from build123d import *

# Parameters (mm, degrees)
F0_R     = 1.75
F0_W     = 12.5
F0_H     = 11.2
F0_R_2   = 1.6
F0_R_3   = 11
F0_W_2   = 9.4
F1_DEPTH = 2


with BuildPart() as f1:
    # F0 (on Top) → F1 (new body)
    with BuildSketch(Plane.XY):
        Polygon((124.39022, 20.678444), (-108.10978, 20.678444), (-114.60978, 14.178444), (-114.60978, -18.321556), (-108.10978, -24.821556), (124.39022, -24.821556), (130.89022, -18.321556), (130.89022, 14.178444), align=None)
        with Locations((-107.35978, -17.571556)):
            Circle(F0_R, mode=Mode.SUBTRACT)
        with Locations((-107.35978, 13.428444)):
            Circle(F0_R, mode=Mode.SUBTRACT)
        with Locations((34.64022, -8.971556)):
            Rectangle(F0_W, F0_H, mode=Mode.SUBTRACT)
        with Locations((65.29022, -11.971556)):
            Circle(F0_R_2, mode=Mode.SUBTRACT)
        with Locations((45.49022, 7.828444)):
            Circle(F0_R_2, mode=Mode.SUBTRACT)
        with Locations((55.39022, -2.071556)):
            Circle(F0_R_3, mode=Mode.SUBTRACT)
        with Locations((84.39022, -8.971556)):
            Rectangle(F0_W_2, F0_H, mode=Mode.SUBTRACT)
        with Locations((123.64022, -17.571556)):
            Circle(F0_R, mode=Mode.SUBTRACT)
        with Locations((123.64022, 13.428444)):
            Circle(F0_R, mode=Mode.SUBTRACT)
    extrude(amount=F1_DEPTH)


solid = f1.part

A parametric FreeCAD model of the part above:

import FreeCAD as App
import Part
import Sketcher

doc = App.newDocument("Part")
body = doc.addObject("PartDesign::Body", "Body")

sketch1 = doc.addObject("Sketcher::SketchObject", "Sketch")
body.addObject(sketch1)
sketch1.AttachmentSupport = (doc.XY_Plane, [""])
sketch1.MapMode = "FlatFace"
sketch1.addGeometry(Part.LineSegment(App.Vector(124.4, 20.7, 0), App.Vector(-108.1, 20.7, 0)), False)
sketch1.addGeometry(Part.LineSegment(App.Vector(-108.1, 20.7, 0), App.Vector(-114.6, 14.2, 0)), False)
sketch1.addGeometry(Part.LineSegment(App.Vector(-114.6, 14.2, 0), App.Vector(-114.6, -18.3, 0)), False)
sketch1.addGeometry(Part.LineSegment(App.Vector(-114.6, -18.3, 0), App.Vector(-108.1, -24.8, 0)), False)
sketch1.addGeometry(Part.LineSegment(App.Vector(-108.1, -24.8, 0), App.Vector(124.4, -24.8, 0)), False)
sketch1.addGeometry(Part.LineSegment(App.Vector(124.4, -24.8, 0), App.Vector(130.9, -18.3, 0)), False)
sketch1.addGeometry(Part.LineSegment(App.Vector(130.9, -18.3, 0), App.Vector(130.9, 14.2, 0)), False)
sketch1.addGeometry(Part.LineSegment(App.Vector(130.9, 14.2, 0), App.Vector(124.4, 20.7, 0)), False)
sketch1.addGeometry(Part.Circle(App.Vector(-107.4, -17.6, 0), App.Vector(0, 0, 1), 1.8), False)
sketch1.addGeometry(Part.Circle(App.Vector(65.3, -12, 0), App.Vector(0, 0, 1), 1.6), False)
sketch1.addGeometry(Part.Circle(App.Vector(123.6, -17.6, 0), App.Vector(0, 0, 1), 1.8), False)
sketch1.addGeometry(Part.LineSegment(App.Vector(40.9, -14.6, 0), App.Vector(28.4, -14.6, 0)), False)
sketch1.addGeometry(Part.LineSegment(App.Vector(28.4, -14.6, 0), App.Vector(28.4, -3.4, 0)), False)
sketch1.addGeometry(Part.LineSegment(App.Vector(28.4, -3.4, 0), App.Vector(40.9, -3.4, 0)), False)
sketch1.addGeometry(Part.LineSegment(App.Vector(40.9, -3.4, 0), App.Vector(40.9, -14.6, 0)), False)
sketch1.addGeometry(Part.LineSegment(App.Vector(89.1, -14.6, 0), App.Vector(79.7, -14.6, 0)), False)
sketch1.addGeometry(Part.LineSegment(App.Vector(79.7, -14.6, 0), App.Vector(79.7, -3.4, 0)), False)
sketch1.addGeometry(Part.LineSegment(App.Vector(79.7, -3.4, 0), App.Vector(89.1, -3.4, 0)), False)
sketch1.addGeometry(Part.LineSegment(App.Vector(89.1, -3.4, 0), App.Vector(89.1, -14.6, 0)), False)
sketch1.addGeometry(Part.Circle(App.Vector(-107.4, 13.4, 0), App.Vector(0, 0, 1), 1.8), False)
sketch1.addGeometry(Part.Circle(App.Vector(55.4, -2.1, 0), App.Vector(0, 0, 1), 11), False)
sketch1.addGeometry(Part.Circle(App.Vector(45.5, 7.8, 0), App.Vector(0, 0, 1), 1.6), False)
sketch1.addGeometry(Part.Circle(App.Vector(123.6, 13.4, 0), App.Vector(0, 0, 1), 1.8), False)
sketch1.addConstraint(Sketcher.Constraint("Coincident", 0, 2, 1, 1))
sketch1.addConstraint(Sketcher.Constraint("Coincident", 1, 2, 2, 1))
sketch1.addConstraint(Sketcher.Constraint("Coincident", 2, 2, 3, 1))
sketch1.addConstraint(Sketcher.Constraint("Coincident", 3, 2, 4, 1))
sketch1.addConstraint(Sketcher.Constraint("Coincident", 4, 2, 5, 1))
sketch1.addConstraint(Sketcher.Constraint("Coincident", 5, 2, 6, 1))
sketch1.addConstraint(Sketcher.Constraint("Coincident", 6, 2, 7, 1))
sketch1.addConstraint(Sketcher.Constraint("Coincident", 7, 2, 0, 1))
sketch1.addConstraint(Sketcher.Constraint("Coincident", 11, 2, 12, 1))
sketch1.addConstraint(Sketcher.Constraint("Coincident", 12, 2, 13, 1))
sketch1.addConstraint(Sketcher.Constraint("Coincident", 13, 2, 14, 1))
sketch1.addConstraint(Sketcher.Constraint("Coincident", 14, 2, 11, 1))
sketch1.addConstraint(Sketcher.Constraint("Coincident", 15, 2, 16, 1))
sketch1.addConstraint(Sketcher.Constraint("Coincident", 16, 2, 17, 1))
sketch1.addConstraint(Sketcher.Constraint("Coincident", 17, 2, 18, 1))
sketch1.addConstraint(Sketcher.Constraint("Coincident", 18, 2, 15, 1))
sketch1.addConstraint(Sketcher.Constraint("Horizontal", 0))
sketch1.addConstraint(Sketcher.Constraint("Vertical", 2))
sketch1.addConstraint(Sketcher.Constraint("Horizontal", 4))
sketch1.addConstraint(Sketcher.Constraint("Vertical", 6))
sketch1.addConstraint(Sketcher.Constraint("Horizontal", 11))
sketch1.addConstraint(Sketcher.Constraint("Vertical", 12))
sketch1.addConstraint(Sketcher.Constraint("Horizontal", 13))
sketch1.addConstraint(Sketcher.Constraint("Vertical", 14))
sketch1.addConstraint(Sketcher.Constraint("Horizontal", 15))
sketch1.addConstraint(Sketcher.Constraint("Vertical", 16))
sketch1.addConstraint(Sketcher.Constraint("Horizontal", 17))
sketch1.addConstraint(Sketcher.Constraint("Vertical", 18))
sketch1.addConstraint(Sketcher.Constraint("Equal", 8, 10))
sketch1.addConstraint(Sketcher.Constraint("Equal", 10, 19))
sketch1.addConstraint(Sketcher.Constraint("Equal", 9, 21))
sketch1.addConstraint(Sketcher.Constraint("Equal", 19, 22))
sketch1.addConstraint(Sketcher.Constraint("Perpendicular", 1, 3))
sketch1.addConstraint(Sketcher.Constraint("Perpendicular", 3, 5))
sketch1.addConstraint(Sketcher.Constraint("Perpendicular", 5, 7))
sketch1.addConstraint(Sketcher.Constraint("Horizontal", 8, 3, 10, 3))
sketch1.addConstraint(Sketcher.Constraint("Horizontal", 19, 3, 22, 3))
sketch1.addConstraint(Sketcher.Constraint("Horizontal", 2, 2, 5, 2))
sketch1.addConstraint(Sketcher.Constraint("Horizontal", 1, 2, 6, 2))
sketch1.addConstraint(Sketcher.Constraint("Horizontal", 14, 2, 15, 2))
sketch1.addConstraint(Sketcher.Constraint("Horizontal", 13, 2, 16, 2))
sketch1.addConstraint(Sketcher.Constraint("Vertical", 8, 3, 19, 3))
sketch1.addConstraint(Sketcher.Constraint("Vertical", 10, 3, 22, 3))
sketch1.addConstraint(Sketcher.Constraint("Vertical", 0, 2, 3, 2))
sketch1.addConstraint(Sketcher.Constraint("Vertical", 4, 2, 7, 2))
sketch1.addConstraint(Sketcher.Constraint("Diameter", 20, 22.0))
sketch1.addConstraint(Sketcher.Constraint("Diameter", 8, 3.5))
sketch1.addConstraint(Sketcher.Constraint("Diameter", 9, 3.2))
sketch1.addConstraint(Sketcher.Constraint("DistanceX", 0, 2, 0, 1, 232.5))
sketch1.addConstraint(Sketcher.Constraint("DistanceX", 11, 2, 11, 1, 12.5))
sketch1.addConstraint(Sketcher.Constraint("DistanceX", 15, 2, 15, 1, 9.4))
sketch1.addConstraint(Sketcher.Constraint("DistanceY", 2, 2, 2, 1, 32.5))
sketch1.addConstraint(Sketcher.Constraint("DistanceY", 12, 1, 12, 2, 11.2))
sketch1.addConstraint(Sketcher.Constraint("DistanceX", 8, 3, 10, 3, 231.0))
sketch1.addConstraint(Sketcher.Constraint("DistanceY", 8, 3, 19, 3, 31.0))
sketch1.addConstraint(Sketcher.Constraint("DistanceX", 1, 2, 20, 3, 170.0))
sketch1.addConstraint(Sketcher.Constraint("DistanceY", 2, 2, 0, 2, 39.0))
sketch1.addConstraint(Sketcher.Constraint("DistanceX", 11, 2, 20, 3, 27.0))
sketch1.addConstraint(Sketcher.Constraint("DistanceY", 10, 3, 11, 2, 3.0))
sketch1.addConstraint(Sketcher.Constraint("DistanceY", 8, 3, 9, 3, 5.6))
sketch1.addConstraint(Sketcher.Constraint("DistanceX", 20, 3, 9, 3, 9.9))
sketch1.addConstraint(Sketcher.Constraint("DistanceY", 9, 3, 20, 3, 9.9))
sketch1.addConstraint(Sketcher.Constraint("DistanceX", 21, 3, 20, 3, 9.9))
sketch1.addConstraint(Sketcher.Constraint("DistanceY", 20, 3, 21, 3, 9.9))
sketch1.addConstraint(Sketcher.Constraint("DistanceX", 9, 3, 15, 2, 14.4))
sketch1.addConstraint(Sketcher.Constraint("DistanceX", 8, 3, 9, 3, 172.65))
sketch1.addConstraint(Sketcher.Constraint("DistanceY", 19, 3, 0, 2, 7.25))
sketch1.addConstraint(Sketcher.Constraint("DistanceX", 8, 3, -1, 1, 107.35978))
sketch1.addConstraint(Sketcher.Constraint("DistanceY", 8, 3, -1, 1, 17.571556))
pad1 = doc.addObject("PartDesign::Pad", "Pad")
body.addObject(pad1)
pad1.Profile = sketch1
pad1.Length = 2

doc.recompute()
